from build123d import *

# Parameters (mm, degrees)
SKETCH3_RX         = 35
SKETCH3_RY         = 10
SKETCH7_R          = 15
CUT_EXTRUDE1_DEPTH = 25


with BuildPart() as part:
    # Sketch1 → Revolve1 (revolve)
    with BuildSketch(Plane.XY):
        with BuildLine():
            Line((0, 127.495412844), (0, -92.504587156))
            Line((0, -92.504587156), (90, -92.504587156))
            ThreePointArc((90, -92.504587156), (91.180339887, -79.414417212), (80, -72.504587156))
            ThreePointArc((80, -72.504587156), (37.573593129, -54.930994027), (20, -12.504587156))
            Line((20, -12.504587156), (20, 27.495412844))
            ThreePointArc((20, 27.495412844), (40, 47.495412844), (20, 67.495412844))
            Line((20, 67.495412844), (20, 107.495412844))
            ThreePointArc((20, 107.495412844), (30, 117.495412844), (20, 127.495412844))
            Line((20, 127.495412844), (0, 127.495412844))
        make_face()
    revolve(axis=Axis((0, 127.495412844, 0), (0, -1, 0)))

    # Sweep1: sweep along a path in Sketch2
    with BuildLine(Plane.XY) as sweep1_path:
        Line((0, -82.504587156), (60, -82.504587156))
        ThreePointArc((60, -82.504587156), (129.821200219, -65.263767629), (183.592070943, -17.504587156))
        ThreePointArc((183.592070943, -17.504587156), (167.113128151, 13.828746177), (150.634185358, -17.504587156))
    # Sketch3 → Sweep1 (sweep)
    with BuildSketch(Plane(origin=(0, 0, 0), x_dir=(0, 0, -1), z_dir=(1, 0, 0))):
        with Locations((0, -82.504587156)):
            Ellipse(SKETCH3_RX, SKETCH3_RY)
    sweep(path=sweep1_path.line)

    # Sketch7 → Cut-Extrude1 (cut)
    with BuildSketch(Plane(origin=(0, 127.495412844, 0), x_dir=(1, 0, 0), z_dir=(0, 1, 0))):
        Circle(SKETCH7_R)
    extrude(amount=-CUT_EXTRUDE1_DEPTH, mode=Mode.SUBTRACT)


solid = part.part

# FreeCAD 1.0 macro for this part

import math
import FreeCAD as App
import Part
import Sketcher
from FreeCAD import Vector

doc = App.newDocument("Part")
params = doc.addObject("Spreadsheet::Sheet", "Params")
for row, (alias, value) in enumerate([
    ("sketch1_radius", "60 mm"),
    ("sketch1_radius2", "20 mm"),
    ("sketch1_radius3", "10 mm"),
    ("sketch1_radius4", "12.5 mm"),
    ("sketch1_width", "90 mm"),
    ("revolution_angle", "360 deg"),
    ("sketch3_radius", "150 mm"),
    ("sketch3_radius2", "20 mm"),
    ("sketch3_width", "60 mm"),
    ("sketch4_diameter", "30 mm"),
    ("pocket1_length", "25 mm"),
], start=1):
    params.set(f"A{row}", alias)
    params.set(f"B{row}", "=" + value)
    params.setAlias(f"B{row}", alias)

body = doc.addObject("PartDesign::Body", "Body")

# Sketch on XY plane
sketch1 = body.newObject("Sketcher::SketchObject", "Sketch")
sketch1.AttachmentSupport = (doc.getObject("XY_Plane"), [""])
sketch1.MapMode = "FlatFace"
sketch1.addGeometry(Part.LineSegment(Vector(0, 127.495413, 0), Vector(0, -92.504587, 0)), False)
sketch1.addGeometry(Part.LineSegment(Vector(0, -92.504587, 0), Vector(90, -92.504587, 0)), False)
sketch1.addGeometry(Part.ArcOfCircle(Part.Circle(Vector(80, -85.004587, 0), Vector(0, 0, 1), 12.5), math.radians(-36.869898), math.radians(90)), False)
sketch1.addGeometry(Part.ArcOfCircle(Part.Circle(Vector(80, -12.504587, 0), Vector(0, 0, 1), 60), math.radians(-180), math.radians(-90)), False)
sketch1.addGeometry(Part.LineSegment(Vector(20, -12.504587, 0), Vector(20, 27.495413, 0)), False)
sketch1.addGeometry(Part.ArcOfCircle(Part.Circle(Vector(20, 47.495413, 0), Vector(0, 0, 1), 20), math.radians(-90), math.radians(90)), False)
sketch1.addGeometry(Part.LineSegment(Vector(20, 67.495413, 0), Vector(20, 107.495413, 0)), False)
sketch1.addGeometry(Part.ArcOfCircle(Part.Circle(Vector(20, 117.495413, 0), Vector(0, 0, 1), 10), math.radians(-90), math.radians(90)), False)
sketch1.addGeometry(Part.LineSegment(Vector(20, 127.495413, 0), Vector(0, 127.495413, 0)), False)
sketch1.addConstraint(Sketcher.Constraint("Coincident", 0, 2, 1, 1))
sketch1.addConstraint(Sketcher.Constraint("Coincident", 1, 2, 2, 1))
sketch1.addConstraint(Sketcher.Constraint("Tangent", 2, 2, 3, 2))
sketch1.addConstraint(Sketcher.Constraint("Tangent", 3, 1, 4, 1))
sketch1.addConstraint(Sketcher.Constraint("Coincident", 4, 2, 5, 1))
sketch1.addConstraint(Sketcher.Constraint("Coincident", 5, 2, 6, 1))
sketch1.addConstraint(Sketcher.Constraint("Coincident", 6, 2, 7, 1))
sketch1.addConstraint(Sketcher.Constraint("Tangent", 7, 2, 8, 1))
sketch1.addConstraint(Sketcher.Constraint("Coincident", 8, 2, 0, 1))
sketch1.addConstraint(Sketcher.Constraint("Vertical", 0))
sketch1.addConstraint(Sketcher.Constraint("Horizontal", 1))
sketch1.addConstraint(Sketcher.Constraint("Vertical", 4))
sketch1.addConstraint(Sketcher.Constraint("Vertical", 6))
sketch1.addConstraint(Sketcher.Constraint("Horizontal", 8))
sketch1.addConstraint(Sketcher.Constraint("PointOnObject", 0, 2, -2))
sketch1.addConstraint(Sketcher.Constraint("Vertical", 2, 3, 3, 3))
sketch1.addConstraint(Sketcher.Constraint("Vertical", 5, 3, 7, 3))
sketch1.addConstraint(Sketcher.Constraint("Vertical", 7, 3, 3, 1))
sketch1.addConstraint(Sketcher.Constraint("Vertical", 4, 2, 5, 2))
sketch1.addConstraint(Sketcher.Constraint("Equal", 4, 6))
sketch1.addConstraint(Sketcher.Constraint("Radius", 3, 60.0))
sketch1.addConstraint(Sketcher.Constraint("Radius", 5, 20.0))
sketch1.addConstraint(Sketcher.Constraint("Radius", 7, 10.0))
sketch1.addConstraint(Sketcher.Constraint("Radius", 2, 12.5))
sketch1.addConstraint(Sketcher.Constraint("DistanceX", 1, 1, 1, 2, 90.0))
sketch1.addConstraint(Sketcher.Constraint("DistanceX", 8, 2, 8, 1, 20.0))
sketch1.addConstraint(Sketcher.Constraint("DistanceY", 0, 2, 0, 1, 220.0))
sketch1.addConstraint(Sketcher.Constraint("DistanceY", 2, 3, -1, 1, 85.004587))
sketch1.setExpression("Constraints[20]", "Params.sketch1_radius")
sketch1.setExpression("Constraints[21]", "Params.sketch1_radius2")
sketch1.setExpression("Constraints[22]", "Params.sketch1_radius3")
sketch1.setExpression("Constraints[23]", "Params.sketch1_radius4")
sketch1.setExpression("Constraints[24]", "Params.sketch1_width")
revolution = body.newObject("PartDesign::Revolution", "Revolution")
revolution.Profile = sketch1
revolution.ReferenceAxis = (sketch1, ["V_Axis"])
revolution.setExpression("Angle", "Params.revolution_angle")

# Sketch on YZ plane
sketch2 = body.newObject("Sketcher::SketchObject", "Sketch001")
sketch2.AttachmentSupport = (doc.getObject("YZ_Plane"), [""])
sketch2.MapMode = "FlatFace"
sketch2.addGeometry(Part.Ellipse(Vector(-82.504587, -35, 0), Vector(-72.504587, 0, 0), Vector(-82.504587, 0, 0)), False)
sketch2.addConstraint(Sketcher.Constraint("Block", 0))

# Sketch on XY plane
sketch3 = body.newObject("Sketcher::SketchObject", "Sketch002")
sketch3.AttachmentSupport = (doc.getObject("XY_Plane"), [""])
sketch3.MapMode = "FlatFace"
sketch3.addGeometry(Part.LineSegment(Vector(0, -82.504587, 0), Vector(60, -82.504587, 0)), False)
sketch3.addGeometry(Part.ArcOfCircle(Part.Circle(Vector(60, 67.495413, 0), Vector(0, 0, 1), 150), math.radians(-90), math.radians(-34.518108)), False)
sketch3.addGeometry(Part.ArcOfCircle(Part.Circle(Vector(167.113128, -6.171254, 0), Vector(0, 0, 1), 20), math.radians(-34.518108), math.radians(214.518108)), False)
sketch3.addConstraint(Sketcher.Constraint("Tangent", 0, 2, 1, 1))
sketch3.addConstraint(Sketcher.Constraint("Tangent", 1, 2, 2, 1))
sketch3.addConstraint(Sketcher.Constraint("Horizontal", 0))
sketch3.addConstraint(Sketcher.Constraint("PointOnObject", 0, 1, -2))
sketch3.addConstraint(Sketcher.Constraint("Horizontal", 1, 2, 2, 2))
sketch3.addConstraint(Sketcher.Constraint("Radius", 1, 150.0))
sketch3.addConstraint(Sketcher.Constraint("Radius", 2, 20.0))
sketch3.addConstraint(Sketcher.Constraint("DistanceX", 0, 1, 0, 2, 60.0))
sketch3.addConstraint(Sketcher.Constraint("DistanceY", 0, 2, 1, 2, 65.0))
sketch3.addConstraint(Sketcher.Constraint("DistanceY", -1, 1, 1, 3, 67.495413))
sketch3.setExpression("Constraints[5]", "Params.sketch3_radius")
sketch3.setExpression("Constraints[6]", "Params.sketch3_radius2")
sketch3.setExpression("Constraints[7]", "Params.sketch3_width")
doc.recompute()

additivepipe = body.newObject("PartDesign::AdditivePipe", "AdditivePipe")
additivepipe.Profile = sketch2
additivepipe.Spine = (sketch3, ["Edge1", "Edge2", "Edge3"])

# Sketch on XZ plane
sketch4 = body.newObject("Sketcher::SketchObject", "Sketch003")
sketch4.AttachmentSupport = (doc.getObject("XZ_Plane"), [""])
sketch4.MapMode = "FlatFace"
sketch4.AttachmentOffset = App.Placement(Vector(0, 0, -127.495413), App.Rotation())
sketch4.addGeometry(Part.Circle(Vector(0, 0, 0), Vector(0, 0, 1), 15), False)
sketch4.addConstraint(Sketcher.Constraint("Coincident", 0, 3, -1, 1))
sketch4.addConstraint(Sketcher.Constraint("Diameter", 0, 30.0))
sketch4.setExpression("Constraints[1]", "Params.sketch4_diameter")
pocket1 = body.newObject("PartDesign::Pocket", "Pocket")
pocket1.Profile = sketch4
pocket1.setExpression("Length", "Params.pocket1_length")
pocket1.Reversed = True

doc.recompute()
